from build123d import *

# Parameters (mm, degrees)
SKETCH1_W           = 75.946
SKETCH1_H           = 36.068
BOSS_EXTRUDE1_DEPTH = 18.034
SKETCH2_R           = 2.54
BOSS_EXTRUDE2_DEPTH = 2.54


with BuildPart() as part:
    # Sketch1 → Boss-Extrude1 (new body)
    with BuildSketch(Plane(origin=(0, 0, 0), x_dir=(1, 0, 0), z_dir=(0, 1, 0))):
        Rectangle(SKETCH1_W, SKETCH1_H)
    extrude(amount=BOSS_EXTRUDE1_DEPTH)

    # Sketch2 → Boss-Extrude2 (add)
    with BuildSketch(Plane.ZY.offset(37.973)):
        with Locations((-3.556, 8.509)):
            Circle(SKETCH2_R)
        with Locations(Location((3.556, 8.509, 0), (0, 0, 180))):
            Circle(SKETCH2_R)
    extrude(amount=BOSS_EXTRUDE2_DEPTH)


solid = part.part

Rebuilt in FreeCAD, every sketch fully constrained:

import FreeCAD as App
import Part
import Sketcher

V = App.Vector
Q = App.Units.Quantity

doc = App.newDocument("Part")
body = doc.addObject("PartDesign::Body", "Body")

sketch1 = body.newObject("Sketcher::SketchObject", "Sketch")
sketch1.AttachmentSupport = (doc.getObject("XZ_Plane"), [""])
sketch1.MapMode = "FlatFace"
sketch1.addGeometry(Part.LineSegment(V(-38, -18, 0), V(-38, 18, 0)), False)
sketch1.addGeometry(Part.LineSegment(V(-38, 18, 0), V(38, 18, 0)), False)
sketch1.addGeometry(Part.LineSegment(V(38, 18, 0), V(38, -18, 0)), False)
sketch1.addGeometry(Part.LineSegment(V(38, -18, 0), V(-38, -18, 0)), False)
sketch1.addConstraint(Sketcher.Constraint("Coincident", 0, 2, 1, 1))
sketch1.addConstraint(Sketcher.Constraint("Coincident", 1, 2, 2, 1))
sketch1.addConstraint(Sketcher.Constraint("Coincident", 2, 2, 3, 1))
sketch1.addConstraint(Sketcher.Constraint("Coincident", 3, 2, 0, 1))
sketch1.addConstraint(Sketcher.Constraint("Vertical", 0))
sketch1.addConstraint(Sketcher.Constraint("Horizontal", 1))
sketch1.addConstraint(Sketcher.Constraint("Vertical", 2))
sketch1.addConstraint(Sketcher.Constraint("Horizontal", 3))
sketch1.addConstraint(Sketcher.Constraint("Symmetric", 0, 2, 2, 2, -1, 1))
sketch1.addConstraint(Sketcher.Constraint("DistanceX", 1, 1, 1, 2, Q("2.99 in")))
sketch1.addConstraint(Sketcher.Constraint("DistanceY", 0, 1, 0, 2, Q("1.42 in")))
pad1 = body.newObject("PartDesign::Pad", "Pad")
pad1.Profile = sketch1
pad1.Length = Q("0.71 in")
pad1.Reversed = True

sketch2 = body.newObject("Sketcher::SketchObject", "Sketch001")
sketch2.AttachmentSupport = (doc.getObject("YZ_Plane"), [""])
sketch2.MapMode = "FlatFace"
sketch2.AttachmentOffset = App.Placement(V(0, 0, -1.495 * 25.4), App.Rotation())
sketch2.addGeometry(Part.Circle(V(8.5, -3.6, 0), V(0, 0, 1), 2.5), False)
sketch2.addGeometry(Part.Circle(V(8.5, 3.6, 0), V(0, 0, 1), 2.5), False)
sketch2.addConstraint(Sketcher.Constraint("Equal", 0, 1))
sketch2.addConstraint(Sketcher.Constraint("Symmetric", 0, 3, 1, 3, -1))
sketch2.addConstraint(Sketcher.Constraint("Diameter", 0, Q("0.2 in")))
sketch2.addConstraint(Sketcher.Constraint("DistanceY", 0, 3, -1, 1, Q("0.14 in")))
sketch2.addConstraint(Sketcher.Constraint("DistanceX", -1, 1, 0, 3, Q("0.335 in")))
pad2 = body.newObject("PartDesign::Pad", "Pad001")
pad2.Profile = sketch2
pad2.Length = Q("0.1 in")
pad2.Reversed = True

doc.recompute()
